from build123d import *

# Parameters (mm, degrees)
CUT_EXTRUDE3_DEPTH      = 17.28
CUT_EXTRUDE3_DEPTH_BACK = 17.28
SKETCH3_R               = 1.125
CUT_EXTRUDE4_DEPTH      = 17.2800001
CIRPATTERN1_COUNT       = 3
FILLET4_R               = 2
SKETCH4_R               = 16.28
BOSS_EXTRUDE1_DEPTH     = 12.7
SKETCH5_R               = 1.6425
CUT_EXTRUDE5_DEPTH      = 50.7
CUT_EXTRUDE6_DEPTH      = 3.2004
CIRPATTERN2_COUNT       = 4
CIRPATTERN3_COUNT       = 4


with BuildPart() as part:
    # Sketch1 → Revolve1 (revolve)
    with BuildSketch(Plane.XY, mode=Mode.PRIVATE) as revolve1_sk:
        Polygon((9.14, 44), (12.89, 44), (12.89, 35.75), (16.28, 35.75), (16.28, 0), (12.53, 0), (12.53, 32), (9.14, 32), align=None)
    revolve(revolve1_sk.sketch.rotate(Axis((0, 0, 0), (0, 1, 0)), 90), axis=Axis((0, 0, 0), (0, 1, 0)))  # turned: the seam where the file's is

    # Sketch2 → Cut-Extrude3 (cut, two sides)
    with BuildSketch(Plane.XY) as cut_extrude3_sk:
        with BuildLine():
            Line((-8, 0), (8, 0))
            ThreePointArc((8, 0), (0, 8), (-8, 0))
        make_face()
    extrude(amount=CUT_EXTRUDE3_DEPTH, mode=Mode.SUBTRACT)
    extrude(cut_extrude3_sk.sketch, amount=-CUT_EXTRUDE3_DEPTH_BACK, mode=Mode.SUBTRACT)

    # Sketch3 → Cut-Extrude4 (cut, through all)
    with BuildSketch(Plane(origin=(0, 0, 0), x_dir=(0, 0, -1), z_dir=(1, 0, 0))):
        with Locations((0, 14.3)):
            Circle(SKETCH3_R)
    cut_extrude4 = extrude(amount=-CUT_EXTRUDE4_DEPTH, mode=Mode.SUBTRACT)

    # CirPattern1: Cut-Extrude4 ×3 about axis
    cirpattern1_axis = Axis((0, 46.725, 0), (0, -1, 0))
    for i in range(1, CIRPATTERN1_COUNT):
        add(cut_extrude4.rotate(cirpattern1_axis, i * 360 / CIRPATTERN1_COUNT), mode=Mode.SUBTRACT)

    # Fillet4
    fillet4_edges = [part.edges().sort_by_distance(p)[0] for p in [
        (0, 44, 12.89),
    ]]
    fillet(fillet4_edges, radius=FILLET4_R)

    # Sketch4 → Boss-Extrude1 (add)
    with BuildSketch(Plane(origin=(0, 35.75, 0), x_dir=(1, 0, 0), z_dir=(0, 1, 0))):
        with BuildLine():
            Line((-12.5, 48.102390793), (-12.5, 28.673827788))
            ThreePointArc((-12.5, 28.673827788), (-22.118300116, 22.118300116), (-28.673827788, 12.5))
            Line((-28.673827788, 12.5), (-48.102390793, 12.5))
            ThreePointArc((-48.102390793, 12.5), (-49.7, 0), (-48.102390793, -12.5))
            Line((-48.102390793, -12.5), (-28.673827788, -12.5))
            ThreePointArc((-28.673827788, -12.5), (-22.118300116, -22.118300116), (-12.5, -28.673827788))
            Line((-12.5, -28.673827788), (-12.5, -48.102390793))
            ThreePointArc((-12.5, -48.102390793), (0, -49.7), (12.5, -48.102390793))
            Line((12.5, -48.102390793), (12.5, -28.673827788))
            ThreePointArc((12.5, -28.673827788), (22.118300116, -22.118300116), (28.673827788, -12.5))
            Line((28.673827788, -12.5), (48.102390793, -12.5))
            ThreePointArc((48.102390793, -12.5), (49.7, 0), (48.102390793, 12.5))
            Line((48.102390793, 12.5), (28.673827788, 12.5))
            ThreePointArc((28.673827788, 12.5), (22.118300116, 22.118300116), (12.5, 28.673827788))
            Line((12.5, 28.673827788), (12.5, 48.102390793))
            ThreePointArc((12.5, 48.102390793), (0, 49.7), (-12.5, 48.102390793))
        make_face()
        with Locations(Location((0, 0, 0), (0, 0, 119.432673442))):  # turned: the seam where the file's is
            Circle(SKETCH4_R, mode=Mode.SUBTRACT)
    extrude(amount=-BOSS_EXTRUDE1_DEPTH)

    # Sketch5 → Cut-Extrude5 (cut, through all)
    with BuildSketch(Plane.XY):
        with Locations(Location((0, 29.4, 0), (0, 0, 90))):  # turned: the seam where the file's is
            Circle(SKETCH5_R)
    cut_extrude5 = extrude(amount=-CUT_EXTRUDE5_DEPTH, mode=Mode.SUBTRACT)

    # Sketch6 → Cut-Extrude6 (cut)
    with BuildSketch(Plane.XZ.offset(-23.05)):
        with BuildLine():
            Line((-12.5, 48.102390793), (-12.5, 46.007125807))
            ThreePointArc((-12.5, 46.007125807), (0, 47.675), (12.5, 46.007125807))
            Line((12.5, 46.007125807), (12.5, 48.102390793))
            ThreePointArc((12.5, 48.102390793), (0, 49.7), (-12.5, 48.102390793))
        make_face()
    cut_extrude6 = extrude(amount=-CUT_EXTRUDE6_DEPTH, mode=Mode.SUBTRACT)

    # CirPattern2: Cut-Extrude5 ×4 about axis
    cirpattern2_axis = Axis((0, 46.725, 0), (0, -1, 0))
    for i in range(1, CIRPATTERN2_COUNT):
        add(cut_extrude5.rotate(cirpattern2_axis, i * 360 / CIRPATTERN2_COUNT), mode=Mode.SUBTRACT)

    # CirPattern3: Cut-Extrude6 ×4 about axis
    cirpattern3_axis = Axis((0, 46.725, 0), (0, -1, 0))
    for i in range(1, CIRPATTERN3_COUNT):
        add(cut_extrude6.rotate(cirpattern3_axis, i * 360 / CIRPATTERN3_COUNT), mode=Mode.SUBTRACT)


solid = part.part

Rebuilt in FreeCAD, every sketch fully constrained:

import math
import FreeCAD as App
import Part
import Sketcher
from FreeCAD import Vector


def edges_at(feature, points):
    """Names of the edges that pass closest to the given points."""
    edges = feature.Shape.Edges
    near = lambda p: min(range(len(edges)), key=lambda i: edges[i].distToShape(Part.Vertex(*p))[0])
    return sorted({f"Edge{near(p) + 1}" for p in points})


def add_polygon(sketch, points):
    """Adds a closed chain of lines whose ends are joined by coincident constraints."""
    first, n = sketch.GeometryCount, len(points)
    for a, b in zip(points, points[1:] + points[:1]):
        sketch.addGeometry(Part.LineSegment(App.Vector(*a, 0), App.Vector(*b, 0)), False)
    for i in range(n):
        sketch.addConstraint(Sketcher.Constraint("Coincident", first + i, 2, first + (i + 1) % n, 1))

doc = App.newDocument("Part")
params = doc.addObject("Spreadsheet::Sheet", "Params")
for row, (alias, value) in enumerate([
    ("sketch1_height", "12 mm"),
    ("sketch1_height2", "32 mm"),
    ("sketch1_width", "3.75 mm"),
    ("sketch1_width2", "3.39 mm"),
    ("sketch1_height3", "35.75 mm"),
    ("revolution_angle", "360 deg"),
    ("sketch2_radius", "8 mm"),
    ("sketch3_diameter", "2.25 mm"),
    ("fillet_radius", "2 mm"),
    ("sketch4_radius", "49.7 mm"),
    ("sketch4_diameter", "32.56 mm"),
    ("sketch4_radius2", "31.28 mm"),
    ("pad1_length", "12.7 mm"),
    ("sketch6_radius", "49.7 mm"),
    ("pocket4_length", "3.2004 mm"),
], start=1):
    params.set(f"A{row}", alias)
    params.set(f"B{row}", "=" + value)
    params.setAlias(f"B{row}", alias)

body = doc.addObject("PartDesign::Body", "Body")

sketch1 = doc.addObject("Sketcher::SketchObject", "Sketch")
body.addObject(sketch1)
sketch1.AttachmentSupport = (doc.XY_Plane, [""])
sketch1.MapMode = "FlatFace"
add_polygon(sketch1, [(12.9, 44), (9.1, 44), (9.1, 32), (12.5, 32), (12.5, 0), (16.3, 0), (16.3, 35.8), (12.9, 35.8)])
sketch1.addConstraint([
    Sketcher.Constraint("Horizontal", 0),
    Sketcher.Constraint("Vertical", 1),
    Sketcher.Constraint("Horizontal", 2),
    Sketcher.Constraint("Vertical", 3),
    Sketcher.Constraint("Horizontal", 4),
    Sketcher.Constraint("Vertical", 5),
    Sketcher.Constraint("Horizontal", 6),
    Sketcher.Constraint("Vertical", 7),
    Sketcher.Constraint("PointOnObject", 3, 2, -1),
    Sketcher.Constraint("Equal", 0, 4),
    Sketcher.Constraint("DistanceY", 1, 2, 1, 1, 12.0),
    Sketcher.Constraint("DistanceY", 3, 2, 3, 1, 32.0),
    Sketcher.Constraint("DistanceX", 0, 2, 0, 1, 3.75),
    Sketcher.Constraint("DistanceX", 2, 1, 2, 2, 3.39),
    Sketcher.Constraint("DistanceY", 5, 1, 5, 2, 35.75),
    Sketcher.Constraint("DistanceX", -1, 1, 0, 2, 9.14),
])
sketch1.setExpression("Constraints[18]", "Params.sketch1_height")
sketch1.setExpression("Constraints[19]", "Params.sketch1_height2")
sketch1.setExpression("Constraints[20]", "Params.sketch1_width")
sketch1.setExpression("Constraints[21]", "Params.sketch1_width2")
sketch1.setExpression("Constraints[22]", "Params.sketch1_height3")
revolution = doc.addObject("PartDesign::Revolution", "Revolution")
body.addObject(revolution)
revolution.Profile = sketch1
revolution.ReferenceAxis = (sketch1, ["V_Axis"])
revolution.setExpression("Angle", "Params.revolution_angle")

sketch2 = doc.addObject("Sketcher::SketchObject", "Sketch001")
body.addObject(sketch2)
sketch2.AttachmentSupport = (doc.XY_Plane, [""])
sketch2.MapMode = "FlatFace"
sketch2.addGeometry([
    Part.LineSegment(Vector(-8, 0, 0), Vector(8, 0, 0)),
    Part.ArcOfCircle(Part.Circle(Vector(0, 0, 0), Vector(0, 0, 1), 8), math.radians(0), math.radians(180)),
], False)
sketch2.addConstraint([
    Sketcher.Constraint("Coincident", 0, 1, 1, 2),
    Sketcher.Constraint("Coincident", 1, 1, 0, 2),
    Sketcher.Constraint("Horizontal", 0),
    Sketcher.Constraint("Coincident", 1, 3, -1, 1),
    Sketcher.Constraint("PointOnObject", 0, 1, -1),
    Sketcher.Constraint("Radius", 1, 8.0),
])
sketch2.setExpression("Constraints[5]", "Params.sketch2_radius")
pocket1 = doc.addObject("PartDesign::Pocket", "Pocket")
body.addObject(pocket1)
pocket1.Profile = sketch2
pocket1.Type = "ThroughAll"
pocket1.Midplane = True

sketch3 = doc.addObject("Sketcher::SketchObject", "Sketch002")
body.addObject(sketch3)
sketch3.AttachmentSupport = (doc.YZ_Plane, [""])
sketch3.MapMode = "FlatFace"
sketch3.addGeometry(Part.Circle(Vector(14.3, 0, 0), Vector(0, 0, 1), 1.1), False)
sketch3.addConstraint([
    Sketcher.Constraint("PointOnObject", 0, 3, -1),
    Sketcher.Constraint("Diameter", 0, 2.25),
    Sketcher.Constraint("DistanceX", -1, 1, 0, 3, 14.3),
])
sketch3.setExpression("Constraints[1]", "Params.sketch3_diameter")
pocket2 = doc.addObject("PartDesign::Pocket", "Pocket001")
body.addObject(pocket2)
pocket2.Profile = sketch3
pocket2.Type = "ThroughAll"
doc.recompute()

polarpattern = doc.addObject("PartDesign::PolarPattern", "PolarPattern")
body.addObject(polarpattern)
polarpattern.Originals = [pocket2]
polarpattern.Axis = (doc.Y_Axis, [""])
polarpattern.Angle = 360
polarpattern.Occurrences = 3
body.Tip = polarpattern
doc.recompute()

fillet = doc.addObject("PartDesign::Fillet", "Fillet")
body.addObject(fillet)
fillet.Base = (polarpattern, edges_at(polarpattern, [(0, 44, 12.89)]))
fillet.setExpression("Radius", "Params.fillet_radius")

sketch4 = doc.addObject("Sketcher::SketchObject", "Sketch003")
body.addObject(sketch4)
sketch4.AttachmentSupport = (doc.XZ_Plane, [""])
sketch4.MapMode = "FlatFace"
sketch4.AttachmentOffset = App.Placement(Vector(0, 0, -35.75), App.Rotation())
sketch4.addGeometry([
    Part.LineSegment(Vector(-12, -48, 0), Vector(-12, -29, 0)),
    Part.ArcOfCircle(Part.Circle(Vector(0, 0, 0), Vector(0, 0, 1), 31), math.radians(-156), math.radians(-114)),
    Part.LineSegment(Vector(-29, -12, 0), Vector(-48, -12, 0)),
    Part.ArcOfCircle(Part.Circle(Vector(0, 0, 0), Vector(0, 0, 1), 50), math.radians(165), math.radians(195)),
    Part.LineSegment(Vector(-48, 12, 0), Vector(-29, 12, 0)),
    Part.ArcOfCircle(Part.Circle(Vector(0, 0, 0), Vector(0, 0, 1), 31), math.radians(114), math.radians(156)),
    Part.LineSegment(Vector(-12, 29, 0), Vector(-12, 48, 0)),
    Part.ArcOfCircle(Part.Circle(Vector(0, 0, 0), Vector(0, 0, 1), 50), math.radians(75), math.radians(105)),
    Part.LineSegment(Vector(12, 48, 0), Vector(12, 29, 0)),
    Part.ArcOfCircle(Part.Circle(Vector(0, 0, 0), Vector(0, 0, 1), 31), math.radians(24), math.radians(66)),
    Part.LineSegment(Vector(29, 12, 0), Vector(48, 12, 0)),
    Part.ArcOfCircle(Part.Circle(Vector(0, 0, 0), Vector(0, 0, 1), 50), math.radians(-15), math.radians(15)),
    Part.LineSegment(Vector(48, -12, 0), Vector(29, -12, 0)),
    Part.ArcOfCircle(Part.Circle(Vector(0, 0, 0), Vector(0, 0, 1), 31), math.radians(-66), math.radians(-24)),
    Part.LineSegment(Vector(12, -29, 0), Vector(12, -48, 0)),
    Part.ArcOfCircle(Part.Circle(Vector(0, 0, 0), Vector(0, 0, 1), 50), math.radians(-105), math.radians(-75)),
    Part.Circle(Vector(0, 0, 0), Vector(0, 0, 1), 16),
], False)
sketch4.addConstraint([
    Sketcher.Constraint("Coincident", 0, 2, 1, 2),
    Sketcher.Constraint("Coincident", 1, 1, 2, 1),
    Sketcher.Constraint("Coincident", 2, 2, 3, 2),
    Sketcher.Constraint("Coincident", 3, 1, 4, 1),
    Sketcher.Constraint("Coincident", 4, 2, 5, 2),
    Sketcher.Constraint("Coincident", 5, 1, 6, 1),
    Sketcher.Constraint("Coincident", 6, 2, 7, 2),
    Sketcher.Constraint("Coincident", 7, 1, 8, 1),
    Sketcher.Constraint("Coincident", 8, 2, 9, 2),
    Sketcher.Constraint("Coincident", 9, 1, 10, 1),
    Sketcher.Constraint("Coincident", 10, 2, 11, 2),
    Sketcher.Constraint("Coincident", 11, 1, 12, 1),
    Sketcher.Constraint("Coincident", 12, 2, 13, 2),
    Sketcher.Constraint("Coincident", 13, 1, 14, 1),
    Sketcher.Constraint("Coincident", 14, 2, 15, 2),
    Sketcher.Constraint("Coincident", 15, 1, 0, 1),
    Sketcher.Constraint("Vertical", 0),
    Sketcher.Constraint("Horizontal", 2),
    Sketcher.Constraint("Horizontal", 4),
    Sketcher.Constraint("Vertical", 6),
    Sketcher.Constraint("Vertical", 8),
    Sketcher.Constraint("Horizontal", 10),
    Sketcher.Constraint("Horizontal", 12),
    Sketcher.Constraint("Vertical", 14),
    Sketcher.Constraint("Coincident", 1, 3, -1, 1),
    Sketcher.Constraint("Coincident", 3, 3, -1, 1),
    Sketcher.Constraint("Coincident", 5, 3, -1, 1),
    Sketcher.Constraint("Coincident", 7, 3, -1, 1),
    Sketcher.Constraint("Coincident", 9, 3, -1, 1),
    Sketcher.Constraint("Coincident", 11, 3, -1, 1),
    Sketcher.Constraint("Coincident", 13, 3, -1, 1),
    Sketcher.Constraint("Coincident", 15, 3, -1, 1),
    Sketcher.Constraint("Coincident", 16, 3, -1, 1),
    Sketcher.Constraint("Equal", 1, 5),
    Sketcher.Constraint("Equal", 3, 7),
    Sketcher.Constraint("Equal", 5, 9),
    Sketcher.Constraint("Equal", 7, 11),
    Sketcher.Constraint("Equal", 9, 13),
    Sketcher.Constraint("Equal", 11, 15),
    Sketcher.Constraint("Horizontal", 6, 2, 7, 1),
    Sketcher.Constraint("Horizontal", 4, 2, 9, 1),
    Sketcher.Constraint("Horizontal", 2, 2, 11, 1),
    Sketcher.Constraint("Horizontal", 0, 2, 13, 1),
    Sketcher.Constraint("Vertical", 2, 2, 3, 1),
    Sketcher.Constraint("Vertical", 0, 2, 5, 1),
    Sketcher.Constraint("Equal", 12, 0),
    Sketcher.Constraint("Radius", 3, 49.7),
    Sketcher.Constraint("Diameter", 16, 32.56),
    Sketcher.Constraint("Radius", 1, 31.28),
    Sketcher.Constraint("DistanceY", 2, 2, 3, 1, 25.0),
])
sketch4.setExpression("Constraints[46]", "Params.sketch4_radius")
sketch4.setExpression("Constraints[47]", "Params.sketch4_diameter")
sketch4.setExpression("Constraints[48]", "Params.sketch4_radius2")
pad1 = doc.addObject("PartDesign::Pad", "Pad")
body.addObject(pad1)
pad1.Profile = sketch4
pad1.setExpression("Length", "Params.pad1_length")

sketch5 = doc.addObject("Sketcher::SketchObject", "Sketch004")
body.addObject(sketch5)
sketch5.AttachmentSupport = (doc.XY_Plane, [""])
sketch5.MapMode = "FlatFace"
sketch5.addGeometry(Part.Circle(Vector(0, 29.4, 0), Vector(0, 0, 1), 1.6), False)
sketch5.addConstraint([
    Sketcher.Constraint("PointOnObject", 0, 3, -2),
    Sketcher.Constraint("Diameter", 0, 3.285),
    Sketcher.Constraint("DistanceY", -1, 1, 0, 3, 29.4),
])
pocket3 = doc.addObject("PartDesign::Pocket", "Pocket002")
body.addObject(pocket3)
pocket3.Profile = sketch5
pocket3.Type = "ThroughAll"

sketch6 = doc.addObject("Sketcher::SketchObject", "Sketch005")
body.addObject(sketch6)
sketch6.AttachmentSupport = (doc.XZ_Plane, [""])
sketch6.MapMode = "FlatFace"
sketch6.AttachmentOffset = App.Placement(Vector(0, 0, -23.05), App.Rotation())
sketch6.addGeometry([
    Part.LineSegment(Vector(-12.5, 48.1, 0), Vector(-12.5, 46, 0)),
    Part.ArcOfCircle(Part.Circle(Vector(0, 0, 0), Vector(0, 0, 1), 47.7), math.radians(75), math.radians(105)),
    Part.LineSegment(Vector(12.5, 46, 0), Vector(12.5, 48.1, 0)),
    Part.ArcOfCircle(Part.Circle(Vector(0, 0, 0), Vector(0, 0, 1), 49.7), math.radians(75), math.radians(105)),
], False)
sketch6.addConstraint([
    Sketcher.Constraint("Coincident", 0, 2, 1, 2),
    Sketcher.Constraint("Coincident", 1, 1, 2, 1),
    Sketcher.Constraint("Coincident", 2, 2, 3, 1),
    Sketcher.Constraint("Coincident", 3, 2, 0, 1),
    Sketcher.Constraint("Vertical", 0),
    Sketcher.Constraint("Vertical", 2),
    Sketcher.Constraint("Coincident", 1, 3, -1, 1),
    Sketcher.Constraint("Coincident", 3, 3, -1, 1),
    Sketcher.Constraint("Horizontal", 0, 2, 1, 1),
    Sketcher.Constraint("Radius", 3, 49.7),
    Sketcher.Constraint("Radius", 1, 47.675),
    Sketcher.Constraint("DistanceX", 0, 2, 1, 1, 25.0),
])
sketch6.setExpression("Constraints[9]", "Params.sketch6_radius")
pocket4 = doc.addObject("PartDesign::Pocket", "Pocket003")
body.addObject(pocket4)
pocket4.Profile = sketch6
pocket4.setExpression("Length", "Params.pocket4_length")
doc.recompute()

polarpattern2 = doc.addObject("PartDesign::PolarPattern", "PolarPattern001")
body.addObject(polarpattern2)
polarpattern2.Originals = [pocket3]
polarpattern2.Axis = (doc.Y_Axis, [""])
polarpattern2.Angle = 360
polarpattern2.Occurrences = 4
body.Tip = polarpattern2
doc.recompute()

polarpattern3 = doc.addObject("PartDesign::PolarPattern", "PolarPattern002")
body.addObject(polarpattern3)
polarpattern3.Originals = [pocket4]
polarpattern3.Axis = (doc.Y_Axis, [""])
polarpattern3.Angle = 360
polarpattern3.Occurrences = 4
body.Tip = polarpattern3

doc.recompute()
